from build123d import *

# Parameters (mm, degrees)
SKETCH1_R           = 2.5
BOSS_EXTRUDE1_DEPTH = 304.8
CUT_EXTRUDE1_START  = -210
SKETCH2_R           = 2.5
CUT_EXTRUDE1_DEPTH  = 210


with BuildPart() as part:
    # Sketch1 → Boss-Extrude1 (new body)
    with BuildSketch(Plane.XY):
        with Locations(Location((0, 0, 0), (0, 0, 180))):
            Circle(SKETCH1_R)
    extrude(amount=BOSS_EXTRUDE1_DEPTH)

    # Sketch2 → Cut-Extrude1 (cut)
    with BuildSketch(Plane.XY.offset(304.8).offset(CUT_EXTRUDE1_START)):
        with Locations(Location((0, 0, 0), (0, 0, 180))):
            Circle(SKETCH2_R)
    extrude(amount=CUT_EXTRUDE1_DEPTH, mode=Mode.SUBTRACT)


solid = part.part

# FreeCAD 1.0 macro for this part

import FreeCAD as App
import Part
import Sketcher

doc = App.newDocument("Part")
body = doc.addObject("PartDesign::Body", "Body")

sketch1 = doc.addObject("Sketcher::SketchObject", "Sketch")
body.addObject(sketch1)
sketch1.AttachmentSupport = (doc.XY_Plane, [""])
sketch1.MapMode = "FlatFace"
sketch1.addGeometry(Part.Circle(App.Vector(0, 0, 0), App.Vector(0, 0, 1), 2.5), False)
sketch1.addConstraint([
    Sketcher.Constraint("Coincident", 0, 3, -1, 1),
    Sketcher.Constraint("Diameter", 0, 5.0),
])
pad1 = doc.addObject("PartDesign::Pad", "Pad")
body.addObject(pad1)
pad1.Profile = sketch1
pad1.Length = 304.8

sketch2 = doc.addObject("Sketcher::SketchObject", "Sketch001")
body.addObject(sketch2)
sketch2.AttachmentSupport = (doc.XY_Plane, [""])
sketch2.MapMode = "FlatFace"
sketch2.AttachmentOffset = App.Placement(App.Vector(0, 0, 94.8), App.Rotation())
sketch2.addGeometry(Part.Circle(App.Vector(0, 0, 0), App.Vector(0, 0, 1), 2.5), False)
sketch2.addConstraint([
    Sketcher.Constraint("Coincident", 0, 3, -1, 1),
    Sketcher.Constraint("Diameter", 0, 5.0),
])
pocket1 = doc.addObject("PartDesign::Pocket", "Pocket")
body.addObject(pocket1)
pocket1.Profile = sketch2
pocket1.Length = 210
pocket1.Reversed = True

doc.recompute()
